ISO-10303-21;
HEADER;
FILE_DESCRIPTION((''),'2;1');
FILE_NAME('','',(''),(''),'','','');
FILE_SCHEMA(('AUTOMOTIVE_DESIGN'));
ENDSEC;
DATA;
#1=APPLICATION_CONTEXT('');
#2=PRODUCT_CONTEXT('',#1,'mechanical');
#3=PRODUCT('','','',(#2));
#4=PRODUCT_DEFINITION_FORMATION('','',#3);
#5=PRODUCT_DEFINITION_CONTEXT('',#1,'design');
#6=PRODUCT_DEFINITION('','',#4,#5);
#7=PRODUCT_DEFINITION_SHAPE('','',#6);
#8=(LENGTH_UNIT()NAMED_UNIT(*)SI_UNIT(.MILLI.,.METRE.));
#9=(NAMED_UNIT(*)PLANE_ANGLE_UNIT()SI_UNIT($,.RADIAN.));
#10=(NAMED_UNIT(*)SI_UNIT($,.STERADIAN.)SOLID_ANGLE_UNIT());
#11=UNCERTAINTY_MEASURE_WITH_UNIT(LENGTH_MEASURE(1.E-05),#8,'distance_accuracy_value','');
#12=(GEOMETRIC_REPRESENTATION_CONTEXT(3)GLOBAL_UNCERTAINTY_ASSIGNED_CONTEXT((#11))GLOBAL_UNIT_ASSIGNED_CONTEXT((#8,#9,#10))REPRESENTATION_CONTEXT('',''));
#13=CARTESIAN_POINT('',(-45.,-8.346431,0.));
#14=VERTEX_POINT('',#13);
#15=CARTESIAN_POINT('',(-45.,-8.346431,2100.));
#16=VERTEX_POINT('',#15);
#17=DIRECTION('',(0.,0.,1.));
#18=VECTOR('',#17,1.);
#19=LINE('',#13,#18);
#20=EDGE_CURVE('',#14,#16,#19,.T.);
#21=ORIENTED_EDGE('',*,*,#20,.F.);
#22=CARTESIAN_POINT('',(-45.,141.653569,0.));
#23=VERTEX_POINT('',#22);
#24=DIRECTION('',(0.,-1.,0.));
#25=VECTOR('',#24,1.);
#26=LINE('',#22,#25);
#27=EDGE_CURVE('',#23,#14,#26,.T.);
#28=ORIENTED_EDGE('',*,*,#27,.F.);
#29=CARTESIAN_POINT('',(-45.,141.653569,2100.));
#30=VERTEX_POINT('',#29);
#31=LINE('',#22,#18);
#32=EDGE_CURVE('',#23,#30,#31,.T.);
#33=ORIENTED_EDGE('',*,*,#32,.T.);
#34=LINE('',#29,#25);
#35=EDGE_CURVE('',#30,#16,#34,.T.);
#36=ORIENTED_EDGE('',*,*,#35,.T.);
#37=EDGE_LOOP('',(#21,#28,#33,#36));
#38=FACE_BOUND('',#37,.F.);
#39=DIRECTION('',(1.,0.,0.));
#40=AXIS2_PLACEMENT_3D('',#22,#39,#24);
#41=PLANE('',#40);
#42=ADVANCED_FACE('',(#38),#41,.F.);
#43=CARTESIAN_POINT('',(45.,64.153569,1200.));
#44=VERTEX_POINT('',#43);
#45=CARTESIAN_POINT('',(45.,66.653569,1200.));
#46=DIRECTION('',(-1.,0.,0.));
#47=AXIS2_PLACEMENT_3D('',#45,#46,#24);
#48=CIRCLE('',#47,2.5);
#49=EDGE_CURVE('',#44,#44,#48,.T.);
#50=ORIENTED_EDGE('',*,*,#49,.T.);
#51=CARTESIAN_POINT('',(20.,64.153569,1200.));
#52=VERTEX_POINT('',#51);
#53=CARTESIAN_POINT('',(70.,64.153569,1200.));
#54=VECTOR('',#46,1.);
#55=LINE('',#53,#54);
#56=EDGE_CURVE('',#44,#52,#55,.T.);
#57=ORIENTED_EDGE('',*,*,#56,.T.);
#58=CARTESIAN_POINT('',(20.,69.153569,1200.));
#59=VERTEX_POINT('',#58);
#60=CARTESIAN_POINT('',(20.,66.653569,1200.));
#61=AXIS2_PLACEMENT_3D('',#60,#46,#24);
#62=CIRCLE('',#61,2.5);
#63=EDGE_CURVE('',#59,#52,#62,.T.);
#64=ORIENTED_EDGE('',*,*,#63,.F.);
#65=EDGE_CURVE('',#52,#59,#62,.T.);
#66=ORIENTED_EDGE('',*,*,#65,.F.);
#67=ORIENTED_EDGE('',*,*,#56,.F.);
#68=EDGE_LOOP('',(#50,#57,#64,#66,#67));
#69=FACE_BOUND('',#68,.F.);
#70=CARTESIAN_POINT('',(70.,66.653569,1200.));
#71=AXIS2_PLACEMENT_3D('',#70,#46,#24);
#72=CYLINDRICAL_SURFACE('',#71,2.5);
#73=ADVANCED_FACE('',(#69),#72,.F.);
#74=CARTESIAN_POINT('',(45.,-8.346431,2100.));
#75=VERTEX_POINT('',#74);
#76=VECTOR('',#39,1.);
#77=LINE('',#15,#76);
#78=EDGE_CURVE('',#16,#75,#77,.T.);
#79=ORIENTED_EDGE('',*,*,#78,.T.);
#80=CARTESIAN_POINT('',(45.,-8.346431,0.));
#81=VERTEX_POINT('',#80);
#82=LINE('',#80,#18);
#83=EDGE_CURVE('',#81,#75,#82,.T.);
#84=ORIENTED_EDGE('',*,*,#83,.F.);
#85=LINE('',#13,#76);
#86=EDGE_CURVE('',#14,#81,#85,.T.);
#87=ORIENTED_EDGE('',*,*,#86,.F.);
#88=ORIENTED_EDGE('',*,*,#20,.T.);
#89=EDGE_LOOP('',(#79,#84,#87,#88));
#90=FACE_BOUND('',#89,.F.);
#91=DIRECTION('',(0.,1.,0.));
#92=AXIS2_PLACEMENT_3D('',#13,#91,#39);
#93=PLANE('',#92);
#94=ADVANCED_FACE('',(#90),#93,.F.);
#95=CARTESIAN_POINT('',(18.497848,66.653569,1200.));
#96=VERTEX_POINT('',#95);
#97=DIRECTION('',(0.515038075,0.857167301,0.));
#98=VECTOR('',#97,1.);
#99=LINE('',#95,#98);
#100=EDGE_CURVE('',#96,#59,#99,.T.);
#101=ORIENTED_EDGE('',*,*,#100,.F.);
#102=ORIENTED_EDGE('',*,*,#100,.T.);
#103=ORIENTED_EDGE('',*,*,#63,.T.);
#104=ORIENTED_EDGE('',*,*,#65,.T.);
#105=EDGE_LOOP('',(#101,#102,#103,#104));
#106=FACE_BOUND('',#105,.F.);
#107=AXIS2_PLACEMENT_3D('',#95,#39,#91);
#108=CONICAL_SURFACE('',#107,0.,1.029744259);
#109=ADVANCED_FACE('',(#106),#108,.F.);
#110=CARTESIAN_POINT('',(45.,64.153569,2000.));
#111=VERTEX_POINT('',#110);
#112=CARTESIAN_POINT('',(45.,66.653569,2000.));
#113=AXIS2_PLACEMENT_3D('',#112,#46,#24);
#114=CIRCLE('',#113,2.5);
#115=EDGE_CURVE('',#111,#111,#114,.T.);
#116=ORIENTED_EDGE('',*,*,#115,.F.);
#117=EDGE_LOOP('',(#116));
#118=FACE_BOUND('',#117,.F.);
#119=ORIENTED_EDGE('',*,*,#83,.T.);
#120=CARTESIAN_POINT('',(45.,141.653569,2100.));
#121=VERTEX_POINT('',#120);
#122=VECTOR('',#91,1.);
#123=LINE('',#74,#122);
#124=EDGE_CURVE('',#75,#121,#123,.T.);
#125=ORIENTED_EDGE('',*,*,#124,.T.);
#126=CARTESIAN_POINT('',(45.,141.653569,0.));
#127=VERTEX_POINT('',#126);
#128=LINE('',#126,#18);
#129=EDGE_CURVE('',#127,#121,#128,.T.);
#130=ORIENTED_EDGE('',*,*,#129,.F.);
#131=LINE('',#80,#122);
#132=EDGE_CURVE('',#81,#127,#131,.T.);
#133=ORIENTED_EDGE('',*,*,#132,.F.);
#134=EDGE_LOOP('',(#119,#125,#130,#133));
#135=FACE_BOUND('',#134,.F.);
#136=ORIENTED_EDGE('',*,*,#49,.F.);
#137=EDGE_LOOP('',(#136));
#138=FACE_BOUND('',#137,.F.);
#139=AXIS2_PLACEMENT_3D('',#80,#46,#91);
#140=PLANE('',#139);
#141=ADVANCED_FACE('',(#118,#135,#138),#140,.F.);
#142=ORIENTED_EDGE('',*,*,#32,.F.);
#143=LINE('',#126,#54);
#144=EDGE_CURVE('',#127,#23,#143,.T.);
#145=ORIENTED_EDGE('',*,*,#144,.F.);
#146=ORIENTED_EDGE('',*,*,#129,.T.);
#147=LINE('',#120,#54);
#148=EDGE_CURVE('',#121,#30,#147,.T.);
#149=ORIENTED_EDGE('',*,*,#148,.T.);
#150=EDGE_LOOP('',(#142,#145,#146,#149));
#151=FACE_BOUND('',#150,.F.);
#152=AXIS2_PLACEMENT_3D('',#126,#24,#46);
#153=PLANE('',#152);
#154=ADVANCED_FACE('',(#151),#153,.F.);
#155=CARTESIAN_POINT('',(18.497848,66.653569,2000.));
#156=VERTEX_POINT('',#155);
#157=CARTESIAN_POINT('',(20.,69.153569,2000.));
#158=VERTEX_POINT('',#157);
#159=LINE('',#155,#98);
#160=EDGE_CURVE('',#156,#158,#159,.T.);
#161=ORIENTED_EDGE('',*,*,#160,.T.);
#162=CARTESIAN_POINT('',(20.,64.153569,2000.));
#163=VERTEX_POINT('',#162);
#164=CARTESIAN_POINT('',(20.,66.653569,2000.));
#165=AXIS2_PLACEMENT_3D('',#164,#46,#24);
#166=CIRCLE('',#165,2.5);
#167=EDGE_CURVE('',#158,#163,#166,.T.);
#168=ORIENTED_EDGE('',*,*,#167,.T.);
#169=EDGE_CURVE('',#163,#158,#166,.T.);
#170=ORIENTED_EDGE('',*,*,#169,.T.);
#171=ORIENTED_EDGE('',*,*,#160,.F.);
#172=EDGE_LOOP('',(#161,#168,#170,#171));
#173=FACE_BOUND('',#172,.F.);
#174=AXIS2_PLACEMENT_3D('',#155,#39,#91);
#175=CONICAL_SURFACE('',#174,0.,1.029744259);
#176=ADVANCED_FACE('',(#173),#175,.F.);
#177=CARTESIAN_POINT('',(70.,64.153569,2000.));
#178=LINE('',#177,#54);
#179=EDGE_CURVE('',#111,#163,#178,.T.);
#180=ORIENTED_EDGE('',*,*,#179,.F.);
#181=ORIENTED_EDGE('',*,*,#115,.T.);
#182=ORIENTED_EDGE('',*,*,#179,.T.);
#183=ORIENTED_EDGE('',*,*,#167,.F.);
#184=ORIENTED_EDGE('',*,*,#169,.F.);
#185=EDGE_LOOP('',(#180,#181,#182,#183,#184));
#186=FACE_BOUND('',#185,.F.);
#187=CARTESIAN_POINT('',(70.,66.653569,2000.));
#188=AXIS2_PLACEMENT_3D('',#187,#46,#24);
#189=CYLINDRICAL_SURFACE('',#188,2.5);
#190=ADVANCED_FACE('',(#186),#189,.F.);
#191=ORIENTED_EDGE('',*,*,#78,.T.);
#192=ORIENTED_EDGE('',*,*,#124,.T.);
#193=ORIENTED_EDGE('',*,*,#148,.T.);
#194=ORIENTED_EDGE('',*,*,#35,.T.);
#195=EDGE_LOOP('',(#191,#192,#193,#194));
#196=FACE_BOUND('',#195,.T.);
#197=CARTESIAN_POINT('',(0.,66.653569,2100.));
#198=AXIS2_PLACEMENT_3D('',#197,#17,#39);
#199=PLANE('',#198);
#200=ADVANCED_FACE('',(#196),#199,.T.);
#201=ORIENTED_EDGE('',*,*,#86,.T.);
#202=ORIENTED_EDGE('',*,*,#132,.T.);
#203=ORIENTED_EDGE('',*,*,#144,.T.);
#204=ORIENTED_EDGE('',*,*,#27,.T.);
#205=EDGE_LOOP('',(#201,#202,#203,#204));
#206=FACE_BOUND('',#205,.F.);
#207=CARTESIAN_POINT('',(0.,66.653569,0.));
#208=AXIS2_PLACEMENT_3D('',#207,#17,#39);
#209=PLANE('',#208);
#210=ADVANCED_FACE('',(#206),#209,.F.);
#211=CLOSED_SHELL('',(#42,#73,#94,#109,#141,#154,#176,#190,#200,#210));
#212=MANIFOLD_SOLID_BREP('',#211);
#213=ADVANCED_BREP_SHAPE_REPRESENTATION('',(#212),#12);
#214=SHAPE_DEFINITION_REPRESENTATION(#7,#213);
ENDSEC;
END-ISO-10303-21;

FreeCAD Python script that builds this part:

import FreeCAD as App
import Part
import Sketcher

doc = App.newDocument("Part")
body = doc.addObject("PartDesign::Body", "Body")

# Sketch on XY plane
sketch1 = body.newObject("Sketcher::SketchObject", "Sketch")
sketch1.AttachmentSupport = (doc.getObject("XY_Plane"), [""])
sketch1.MapMode = "FlatFace"
sketch1.addGeometry(Part.LineSegment(App.Vector(-45, 141.653569, 0), App.Vector(-45, -8.346431, 0)), False)
sketch1.addGeometry(Part.LineSegment(App.Vector(-45, -8.346431, 0), App.Vector(45, -8.346431, 0)), False)
sketch1.addGeometry(Part.LineSegment(App.Vector(45, -8.346431, 0), App.Vector(45, 141.653569, 0)), False)
sketch1.addGeometry(Part.LineSegment(App.Vector(45, 141.653569, 0), App.Vector(-45, 141.653569, 0)), False)
sketch1.addConstraint(Sketcher.Constraint("Coincident", 0, 2, 1, 1))
sketch1.addConstraint(Sketcher.Constraint("Coincident", 1, 2, 2, 1))
sketch1.addConstraint(Sketcher.Constraint("Coincident", 2, 2, 3, 1))
sketch1.addConstraint(Sketcher.Constraint("Coincident", 3, 2, 0, 1))
sketch1.addConstraint(Sketcher.Constraint("Vertical", 0))
sketch1.addConstraint(Sketcher.Constraint("Horizontal", 1))
sketch1.addConstraint(Sketcher.Constraint("Vertical", 2))
sketch1.addConstraint(Sketcher.Constraint("Horizontal", 3))
sketch1.addConstraint(Sketcher.Constraint("DistanceX", 1, 1, 1, 2, 90.0))
sketch1.addConstraint(Sketcher.Constraint("DistanceY", 0, 2, 0, 1, 150.0))
sketch1.addConstraint(Sketcher.Constraint("DistanceX", 0, 2, -1, 1, 45.0))
sketch1.addConstraint(Sketcher.Constraint("DistanceY", 0, 2, -1, 1, 8.346431))
pad1 = body.newObject("PartDesign::Pad", "Pad")
pad1.Profile = sketch1
pad1.Length = 2100

# Sketch on YZ plane
sketch2 = body.newObject("Sketcher::SketchObject", "Sketch001")
sketch2.AttachmentSupport = (doc.getObject("YZ_Plane"), [""])
sketch2.MapMode = "FlatFace"
sketch2.AttachmentOffset = App.Placement(App.Vector(0, 0, 45), App.Rotation())
sketch2.addGeometry(Part.Circle(App.Vector(66.653569, 1200, 0), App.Vector(0, 0, 1), 2.5), False)
sketch2.addConstraint(Sketcher.Constraint("Diameter", 0, 5.0))
sketch2.addConstraint(Sketcher.Constraint("DistanceY", -1, 1, 0, 3, 1200.0))
sketch2.addConstraint(Sketcher.Constraint("DistanceX", -1, 1, 0, 3, 66.653569))
doc.recompute()
hole = body.newObject("PartDesign::Hole", "Hole")
hole.Profile = sketch2
hole.ThreadType = "None"
hole.Diameter = 5
hole.DepthType = "Dimension"
hole.Depth = 25
hole.DrillPoint = "Angled"
hole.DrillPointAngle = 118

# Sketch on YZ plane
sketch3 = body.newObject("Sketcher::SketchObject", "Sketch002")
sketch3.AttachmentSupport = (doc.getObject("YZ_Plane"), [""])
sketch3.MapMode = "FlatFace"
sketch3.AttachmentOffset = App.Placement(App.Vector(0, 0, 45), App.Rotation())
sketch3.addGeometry(Part.Circle(App.Vector(66.653569, 2000, 0), App.Vector(0, 0, 1), 2.5), False)
sketch3.addConstraint(Sketcher.Constraint("Diameter", 0, 5.0))
sketch3.addConstraint(Sketcher.Constraint("DistanceY", -1, 1, 0, 3, 2000.0))
sketch3.addConstraint(Sketcher.Constraint("DistanceX", -1, 1, 0, 3, 66.653569))
doc.recompute()
hole2 = body.newObject("PartDesign::Hole", "Hole001")
hole2.Profile = sketch3
hole2.ThreadType = "None"
hole2.Diameter = 5
hole2.DepthType = "Dimension"
hole2.Depth = 25
hole2.DrillPoint = "Angled"
hole2.DrillPointAngle = 118

doc.recompute()
